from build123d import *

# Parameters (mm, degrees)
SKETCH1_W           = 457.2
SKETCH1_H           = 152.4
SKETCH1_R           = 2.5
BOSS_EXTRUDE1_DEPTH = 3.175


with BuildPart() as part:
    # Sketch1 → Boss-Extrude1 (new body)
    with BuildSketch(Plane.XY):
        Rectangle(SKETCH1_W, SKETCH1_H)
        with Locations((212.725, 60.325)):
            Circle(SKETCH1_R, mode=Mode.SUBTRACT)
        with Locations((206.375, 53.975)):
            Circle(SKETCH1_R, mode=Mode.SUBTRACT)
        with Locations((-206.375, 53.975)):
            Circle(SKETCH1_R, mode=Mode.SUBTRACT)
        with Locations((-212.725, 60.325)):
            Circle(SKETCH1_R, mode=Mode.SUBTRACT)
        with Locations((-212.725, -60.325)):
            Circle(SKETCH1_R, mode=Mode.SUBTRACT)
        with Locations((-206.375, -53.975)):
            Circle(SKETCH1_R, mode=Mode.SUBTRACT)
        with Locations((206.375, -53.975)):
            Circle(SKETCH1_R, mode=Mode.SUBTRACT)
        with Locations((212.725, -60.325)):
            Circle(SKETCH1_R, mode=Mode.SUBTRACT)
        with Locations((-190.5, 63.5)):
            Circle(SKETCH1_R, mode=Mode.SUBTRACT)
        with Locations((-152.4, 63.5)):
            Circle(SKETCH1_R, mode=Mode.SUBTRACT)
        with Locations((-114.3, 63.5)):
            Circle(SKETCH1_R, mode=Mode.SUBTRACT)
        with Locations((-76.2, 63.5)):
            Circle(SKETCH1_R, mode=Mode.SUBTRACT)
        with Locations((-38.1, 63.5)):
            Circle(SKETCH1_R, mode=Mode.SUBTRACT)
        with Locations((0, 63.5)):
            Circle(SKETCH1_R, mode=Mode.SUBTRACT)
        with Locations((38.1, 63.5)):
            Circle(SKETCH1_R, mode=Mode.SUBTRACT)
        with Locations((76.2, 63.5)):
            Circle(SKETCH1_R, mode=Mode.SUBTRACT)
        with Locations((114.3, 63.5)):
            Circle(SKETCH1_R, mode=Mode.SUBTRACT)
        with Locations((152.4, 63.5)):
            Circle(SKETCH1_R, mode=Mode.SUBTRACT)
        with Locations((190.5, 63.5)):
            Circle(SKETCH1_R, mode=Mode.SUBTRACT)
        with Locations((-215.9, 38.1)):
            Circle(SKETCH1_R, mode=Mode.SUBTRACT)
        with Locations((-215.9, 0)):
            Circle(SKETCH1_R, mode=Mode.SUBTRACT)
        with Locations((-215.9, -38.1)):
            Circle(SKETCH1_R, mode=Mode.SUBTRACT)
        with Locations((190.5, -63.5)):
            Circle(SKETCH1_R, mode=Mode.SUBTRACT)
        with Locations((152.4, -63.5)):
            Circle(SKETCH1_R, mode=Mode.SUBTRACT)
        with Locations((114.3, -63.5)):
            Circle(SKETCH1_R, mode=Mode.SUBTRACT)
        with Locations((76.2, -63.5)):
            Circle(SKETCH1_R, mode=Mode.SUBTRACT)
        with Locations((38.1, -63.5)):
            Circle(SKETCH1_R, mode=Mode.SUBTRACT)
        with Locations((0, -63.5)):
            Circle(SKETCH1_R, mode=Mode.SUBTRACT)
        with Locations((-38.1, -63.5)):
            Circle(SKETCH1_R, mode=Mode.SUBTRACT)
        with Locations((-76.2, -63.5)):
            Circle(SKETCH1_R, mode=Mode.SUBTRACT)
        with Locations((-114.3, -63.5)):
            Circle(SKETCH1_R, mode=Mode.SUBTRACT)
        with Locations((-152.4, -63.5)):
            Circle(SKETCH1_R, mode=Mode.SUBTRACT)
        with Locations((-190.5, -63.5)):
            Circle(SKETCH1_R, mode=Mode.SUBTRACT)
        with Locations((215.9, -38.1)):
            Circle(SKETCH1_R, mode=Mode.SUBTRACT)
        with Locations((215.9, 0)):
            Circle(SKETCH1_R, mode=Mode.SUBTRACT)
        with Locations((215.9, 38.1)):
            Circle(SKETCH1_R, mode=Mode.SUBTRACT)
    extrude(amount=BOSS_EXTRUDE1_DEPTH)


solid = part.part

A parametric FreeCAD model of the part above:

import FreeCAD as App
import Part
import Sketcher
Q = App.Units.Quantity


def add_polygon(sketch, points):
    """Adds a closed chain of lines whose ends are joined by coincident constraints."""
    first, n = sketch.GeometryCount, len(points)
    for a, b in zip(points, points[1:] + points[:1]):
        sketch.addGeometry(Part.LineSegment(App.Vector(*a, 0), App.Vector(*b, 0)), False)
    for i in range(n):
        sketch.addConstraint(Sketcher.Constraint("Coincident", first + i, 2, first + (i + 1) % n, 1))

doc = App.newDocument("Part")
body = doc.addObject("PartDesign::Body", "Body")

# Sketch on XY plane
sketch1 = doc.addObject("Sketcher::SketchObject", "Sketch")
body.addObject(sketch1)
sketch1.AttachmentSupport = (doc.XY_Plane, [""])
sketch1.MapMode = "FlatFace"
add_polygon(sketch1, [(-228.6, 76.2), (-228.6, -76.2), (228.6, -76.2), (228.6, 76.2)])  # lines 0-3
sketch1.addGeometry(Part.Circle(App.Vector(-212.7, -60.3, 0), App.Vector(0, 0, 1), 2.5), False)  # 4
sketch1.addGeometry(Part.Circle(App.Vector(-190.5, -63.5, 0), App.Vector(0, 0, 1), 2.5), False)  # 5
sketch1.addGeometry(Part.Circle(App.Vector(-206.4, -54, 0), App.Vector(0, 0, 1), 2.5), False)  # 6
sketch1.addGeometry(Part.Circle(App.Vector(-152.4, -63.5, 0), App.Vector(0, 0, 1), 2.5), False)  # 7
sketch1.addGeometry(Part.Circle(App.Vector(-114.3, -63.5, 0), App.Vector(0, 0, 1), 2.5), False)  # 8
sketch1.addGeometry(Part.Circle(App.Vector(-215.9, -38.1, 0), App.Vector(0, 0, 1), 2.5), False)  # 9
sketch1.addGeometry(Part.Circle(App.Vector(-76.2, -63.5, 0), App.Vector(0, 0, 1), 2.5), False)  # 10
sketch1.addGeometry(Part.Circle(App.Vector(-38.1, -63.5, 0), App.Vector(0, 0, 1), 2.5), False)  # 11
sketch1.addGeometry(Part.Circle(App.Vector(0, -63.5, 0), App.Vector(0, 0, 1), 2.5), False)  # 12
sketch1.addGeometry(Part.Circle(App.Vector(38.1, -63.5, 0), App.Vector(0, 0, 1), 2.5), False)  # 13
sketch1.addGeometry(Part.Circle(App.Vector(76.2, -63.5, 0), App.Vector(0, 0, 1), 2.5), False)  # 14
sketch1.addGeometry(Part.Circle(App.Vector(114.3, -63.5, 0), App.Vector(0, 0, 1), 2.5), False)  # 15
sketch1.addGeometry(Part.Circle(App.Vector(152.4, -63.5, 0), App.Vector(0, 0, 1), 2.5), False)  # 16
sketch1.addGeometry(Part.Circle(App.Vector(190.5, -63.5, 0), App.Vector(0, 0, 1), 2.5), False)  # 17
sketch1.addGeometry(Part.Circle(App.Vector(212.7, -60.3, 0), App.Vector(0, 0, 1), 2.5), False)  # 18
sketch1.addGeometry(Part.Circle(App.Vector(206.4, -54, 0), App.Vector(0, 0, 1), 2.5), False)  # 19
sketch1.addGeometry(Part.Circle(App.Vector(215.9, -38.1, 0), App.Vector(0, 0, 1), 2.5), False)  # 20
sketch1.addGeometry(Part.Circle(App.Vector(-215.9, 0, 0), App.Vector(0, 0, 1), 2.5), False)  # 21
sketch1.addGeometry(Part.Circle(App.Vector(-215.9, 38.1, 0), App.Vector(0, 0, 1), 2.5), False)  # 22
sketch1.addGeometry(Part.Circle(App.Vector(-206.4, 54, 0), App.Vector(0, 0, 1), 2.5), False)  # 23
sketch1.addGeometry(Part.Circle(App.Vector(-212.7, 60.3, 0), App.Vector(0, 0, 1), 2.5), False)  # 24
sketch1.addGeometry(Part.Circle(App.Vector(-190.5, 63.5, 0), App.Vector(0, 0, 1), 2.5), False)  # 25
sketch1.addGeometry(Part.Circle(App.Vector(-152.4, 63.5, 0), App.Vector(0, 0, 1), 2.5), False)  # 26
sketch1.addGeometry(Part.Circle(App.Vector(-114.3, 63.5, 0), App.Vector(0, 0, 1), 2.5), False)  # 27
sketch1.addGeometry(Part.Circle(App.Vector(-76.2, 63.5, 0), App.Vector(0, 0, 1), 2.5), False)  # 28
sketch1.addGeometry(Part.Circle(App.Vector(-38.1, 63.5, 0), App.Vector(0, 0, 1), 2.5), False)  # 29
sketch1.addGeometry(Part.Circle(App.Vector(215.9, 0, 0), App.Vector(0, 0, 1), 2.5), False)  # 30
sketch1.addGeometry(Part.Circle(App.Vector(0, 63.5, 0), App.Vector(0, 0, 1), 2.5), False)  # 31
sketch1.addGeometry(Part.Circle(App.Vector(38.1, 63.5, 0), App.Vector(0, 0, 1), 2.5), False)  # 32
sketch1.addGeometry(Part.Circle(App.Vector(76.2, 63.5, 0), App.Vector(0, 0, 1), 2.5), False)  # 33
sketch1.addGeometry(Part.Circle(App.Vector(215.9, 38.1, 0), App.Vector(0, 0, 1), 2.5), False)  # 34
sketch1.addGeometry(Part.Circle(App.Vector(114.3, 63.5, 0), App.Vector(0, 0, 1), 2.5), False)  # 35
sketch1.addGeometry(Part.Circle(App.Vector(152.4, 63.5, 0), App.Vector(0, 0, 1), 2.5), False)  # 36
sketch1.addGeometry(Part.Circle(App.Vector(206.4, 54, 0), App.Vector(0, 0, 1), 2.5), False)  # 37
sketch1.addGeometry(Part.Circle(App.Vector(190.5, 63.5, 0), App.Vector(0, 0, 1), 2.5), False)  # 38
sketch1.addGeometry(Part.Circle(App.Vector(212.7, 60.3, 0), App.Vector(0, 0, 1), 2.5), False)  # 39
sketch1.addConstraint([
    Sketcher.Constraint("Vertical", 0),
    Sketcher.Constraint("Horizontal", 1),
    Sketcher.Constraint("Vertical", 2),
    Sketcher.Constraint("Horizontal", 3),
    Sketcher.Constraint("Equal", 4, 5),
    Sketcher.Constraint("Equal", 5, 6),
    Sketcher.Constraint("Equal", 6, 7),
    Sketcher.Constraint("Equal", 7, 8),
    Sketcher.Constraint("Equal", 8, 9),
    Sketcher.Constraint("Equal", 9, 10),
    Sketcher.Constraint("Equal", 10, 11),
    Sketcher.Constraint("Equal", 11, 12),
    Sketcher.Constraint("Equal", 12, 13),
    Sketcher.Constraint("Equal", 13, 14),
    Sketcher.Constraint("Equal", 14, 15),
    Sketcher.Constraint("Equal", 15, 16),
    Sketcher.Constraint("Equal", 16, 17),
    Sketcher.Constraint("Equal", 17, 18),
    Sketcher.Constraint("Equal", 18, 19),
    Sketcher.Constraint("Equal", 19, 20),
    Sketcher.Constraint("Equal", 20, 21),
    Sketcher.Constraint("Equal", 21, 22),
    Sketcher.Constraint("Equal", 22, 23),
    Sketcher.Constraint("Equal", 23, 24),
    Sketcher.Constraint("Equal", 24, 25),
    Sketcher.Constraint("Equal", 25, 26),
    Sketcher.Constraint("Equal", 26, 27),
    Sketcher.Constraint("Equal", 27, 28),
    Sketcher.Constraint("Equal", 28, 29),
    Sketcher.Constraint("Equal", 29, 30),
    Sketcher.Constraint("Equal", 30, 31),
    Sketcher.Constraint("Equal", 31, 32),
    Sketcher.Constraint("Equal", 32, 33),
    Sketcher.Constraint("Equal", 33, 34),
    Sketcher.Constraint("Equal", 34, 35),
    Sketcher.Constraint("Equal", 35, 36),
    Sketcher.Constraint("Equal", 36, 37),
    Sketcher.Constraint("Equal", 37, 38),
    Sketcher.Constraint("Equal", 38, 39),
    Sketcher.Constraint("Symmetric", 20, 3, 22, 3, -1, 1),
    Sketcher.Constraint("Symmetric", 19, 3, 23, 3, -1, 1),
    Sketcher.Constraint("Symmetric", 18, 3, 24, 3, -1, 1),
    Sketcher.Constraint("Symmetric", 17, 3, 25, 3, -1, 1),
    Sketcher.Constraint("Symmetric", 16, 3, 26, 3, -1, 1),
    Sketcher.Constraint("Symmetric", 15, 3, 27, 3, -1, 1),
    Sketcher.Constraint("Symmetric", 14, 3, 28, 3, -1, 1),
    Sketcher.Constraint("Symmetric", 13, 3, 29, 3, -1, 1),
    Sketcher.Constraint("Symmetric", 21, 3, 30, 3, -1, 1),
    Sketcher.Constraint("Symmetric", 12, 3, 31, 3, -1, 1),
    Sketcher.Constraint("Symmetric", 11, 3, 32, 3, -1, 1),
    Sketcher.Constraint("Symmetric", 10, 3, 33, 3, -1, 1),
    Sketcher.Constraint("Symmetric", 9, 3, 34, 3, -1, 1),
    Sketcher.Constraint("Symmetric", 8, 3, 35, 3, -1, 1),
    Sketcher.Constraint("Symmetric", 7, 3, 36, 3, -1, 1),
    Sketcher.Constraint("Symmetric", 6, 3, 37, 3, -1, 1),
    Sketcher.Constraint("Symmetric", 5, 3, 38, 3, -1, 1),
    Sketcher.Constraint("Symmetric", 4, 3, 39, 3, -1, 1),
    Sketcher.Constraint("Symmetric", 0, 2, 2, 2, -1, 1),
    Sketcher.Constraint("Symmetric", 11, 3, 13, 3, -2),
    Sketcher.Constraint("Symmetric", 10, 3, 14, 3, -2),
    Sketcher.Constraint("Symmetric", 8, 3, 15, 3, -2),
    Sketcher.Constraint("Symmetric", 7, 3, 16, 3, -2),
    Sketcher.Constraint("Symmetric", 5, 3, 17, 3, -2),
    Sketcher.Constraint("Symmetric", 4, 3, 18, 3, -2),
    Sketcher.Constraint("Symmetric", 6, 3, 19, 3, -2),
    Sketcher.Constraint("Symmetric", 9, 3, 20, 3, -2),
    Sketcher.Constraint("PointOnObject", 12, 3, -2),
    Sketcher.Constraint("PointOnObject", 21, 3, -1),
    Sketcher.Constraint("Horizontal", 5, 3, 7, 3),
    Sketcher.Constraint("Horizontal", 7, 3, 8, 3),
    Sketcher.Constraint("Horizontal", 8, 3, 10, 3),
    Sketcher.Constraint("Horizontal", 10, 3, 11, 3),
    Sketcher.Constraint("Horizontal", 11, 3, 12, 3),
    Sketcher.Constraint("Vertical", 9, 3, 21, 3),
    Sketcher.Constraint("DistanceX", 1, 1, 1, 2, Q("18 in")),
    Sketcher.Constraint("DistanceY", 0, 2, 0, 1, Q("6 in")),
    Sketcher.Constraint("DistanceX", 7, 3, -1, 1, Q("6 in")),
    Sketcher.Constraint("DistanceX", 10, 3, -1, 1, Q("3 in")),
    Sketcher.Constraint("DistanceX", 5, 3, 8, 3, Q("3 in")),
    Sketcher.Constraint("DistanceX", 9, 3, 5, 3, Q("1 in")),
    Sketcher.Constraint("DistanceY", 5, 3, 9, 3, Q("1 in")),
    Sketcher.Constraint("DistanceX", 8, 3, 11, 3, Q("3 in")),
    Sketcher.Constraint("DistanceX", 11, 3, 13, 3, Q("3 in")),
    Sketcher.Constraint("DistanceY", 9, 3, 22, 3, Q("3 in")),
    Sketcher.Constraint("DistanceY", 4, 3, 23, 3, Q("4.5 in")),
    Sketcher.Constraint("Diameter", 4, 5.0),
    Sketcher.Constraint("DistanceX", 4, 3, 6, 3, Q("0.25 in")),
    Sketcher.Constraint("DistanceY", 4, 3, 6, 3, Q("0.25 in")),
    Sketcher.Constraint("DistanceX", 4, 3, -1, 1, Q("8.375 in")),
])
pad1 = doc.addObject("PartDesign::Pad", "Pad")
body.addObject(pad1)
pad1.Profile = sketch1
pad1.Length = Q("0.125 in")

doc.recompute()
